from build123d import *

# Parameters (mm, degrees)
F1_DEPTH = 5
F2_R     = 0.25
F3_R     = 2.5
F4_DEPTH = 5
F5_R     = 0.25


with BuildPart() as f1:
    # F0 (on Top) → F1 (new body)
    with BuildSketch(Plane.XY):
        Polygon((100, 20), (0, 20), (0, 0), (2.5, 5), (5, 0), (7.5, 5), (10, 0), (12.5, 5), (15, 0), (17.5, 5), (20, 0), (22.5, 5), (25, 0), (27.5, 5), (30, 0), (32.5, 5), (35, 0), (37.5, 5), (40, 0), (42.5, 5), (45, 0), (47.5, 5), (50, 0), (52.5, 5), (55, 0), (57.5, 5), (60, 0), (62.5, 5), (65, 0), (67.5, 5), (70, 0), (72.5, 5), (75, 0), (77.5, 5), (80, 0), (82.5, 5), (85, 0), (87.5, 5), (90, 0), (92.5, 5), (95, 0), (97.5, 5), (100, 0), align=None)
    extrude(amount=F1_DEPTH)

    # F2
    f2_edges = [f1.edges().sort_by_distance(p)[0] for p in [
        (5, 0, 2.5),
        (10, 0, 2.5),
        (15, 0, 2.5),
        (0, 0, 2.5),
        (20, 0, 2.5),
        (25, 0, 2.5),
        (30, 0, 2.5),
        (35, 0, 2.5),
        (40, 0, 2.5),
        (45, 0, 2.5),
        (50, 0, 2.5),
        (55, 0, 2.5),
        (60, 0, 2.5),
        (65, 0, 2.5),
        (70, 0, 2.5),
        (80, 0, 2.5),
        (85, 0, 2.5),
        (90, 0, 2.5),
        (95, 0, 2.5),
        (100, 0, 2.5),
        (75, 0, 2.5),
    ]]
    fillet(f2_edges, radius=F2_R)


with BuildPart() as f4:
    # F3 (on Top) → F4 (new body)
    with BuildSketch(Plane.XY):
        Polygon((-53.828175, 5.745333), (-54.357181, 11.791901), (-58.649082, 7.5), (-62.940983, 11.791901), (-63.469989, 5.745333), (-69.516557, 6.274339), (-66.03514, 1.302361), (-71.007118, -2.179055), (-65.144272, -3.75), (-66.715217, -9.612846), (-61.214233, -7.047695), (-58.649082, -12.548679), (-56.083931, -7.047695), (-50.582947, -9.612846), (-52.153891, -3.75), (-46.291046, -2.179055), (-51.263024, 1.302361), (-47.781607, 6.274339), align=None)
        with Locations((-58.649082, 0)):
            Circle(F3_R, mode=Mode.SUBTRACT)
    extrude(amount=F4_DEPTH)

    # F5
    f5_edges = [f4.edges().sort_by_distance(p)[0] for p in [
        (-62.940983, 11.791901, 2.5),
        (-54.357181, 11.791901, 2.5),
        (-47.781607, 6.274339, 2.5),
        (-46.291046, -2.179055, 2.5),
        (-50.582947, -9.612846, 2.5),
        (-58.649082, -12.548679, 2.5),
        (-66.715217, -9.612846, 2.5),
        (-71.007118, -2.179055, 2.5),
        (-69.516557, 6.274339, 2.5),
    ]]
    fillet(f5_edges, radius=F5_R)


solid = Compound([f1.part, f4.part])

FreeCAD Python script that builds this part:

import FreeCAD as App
import Part
import Sketcher
from FreeCAD import Vector
Q = App.Units.Quantity


def edges_at(feature, points):
    """Names of the edges that pass closest to the given points."""
    edges = feature.Shape.Edges
    near = lambda p: min(range(len(edges)), key=lambda i: edges[i].distToShape(Part.Vertex(*p))[0])
    return sorted({f"Edge{near(p) + 1}" for p in points})


def add_polygon(sketch, points):
    """Adds a closed chain of lines whose ends are joined by coincident constraints."""
    first, n = sketch.GeometryCount, len(points)
    for a, b in zip(points, points[1:] + points[:1]):
        sketch.addGeometry(Part.LineSegment(App.Vector(*a, 0), App.Vector(*b, 0)), False)
    for i in range(n):
        sketch.addConstraint(Sketcher.Constraint("Coincident", first + i, 2, first + (i + 1) % n, 1))

doc = App.newDocument("Part")
body = doc.addObject("PartDesign::Body", "Body")

# Sketch on XY plane
sketch1 = body.newObject("Sketcher::SketchObject", "Sketch")
sketch1.AttachmentSupport = (doc.getObject("XY_Plane"), [""])
sketch1.MapMode = "FlatFace"
add_polygon(sketch1, [(100, 20), (0, 20), (0, 0), (2, 5), (5, 0), (8, 5), (10, 0), (12, 5), (15, 0), (18, 5), (20, 0), (22, 5), (25, 0), (28, 5), (30, 0), (32, 5), (35, 0), (38, 5), (40, 0), (42, 5), (45, 0), (48, 5), (50, 0), (52, 5), (55, 0), (58, 5), (60, 0), (62, 5), (65, 0), (68, 5), (70, 0), (72, 5), (75, 0), (78, 5), (80, 0), (82, 5), (85, 0), (88, 5), (90, 0), (92, 5), (95, 0), (98, 5), (100, 0)])  # lines 0-42
sketch1.addConstraint([
    Sketcher.Constraint("Horizontal", 0),
    Sketcher.Constraint("Vertical", 1),
    Sketcher.Constraint("Vertical", 42),
    Sketcher.Constraint("Coincident", 1, 2, -1, 1),
    Sketcher.Constraint("PointOnObject", 3, 2, -1),
    Sketcher.Constraint("PointOnObject", 5, 2, -1),
    Sketcher.Constraint("PointOnObject", 7, 2, -1),
    Sketcher.Constraint("PointOnObject", 9, 2, -1),
    Sketcher.Constraint("PointOnObject", 11, 2, -1),
    Sketcher.Constraint("PointOnObject", 13, 2, -1),
    Sketcher.Constraint("PointOnObject", 15, 2, -1),
    Sketcher.Constraint("PointOnObject", 17, 2, -1),
    Sketcher.Constraint("PointOnObject", 19, 2, -1),
    Sketcher.Constraint("PointOnObject", 21, 2, -1),
    Sketcher.Constraint("PointOnObject", 23, 2, -1),
    Sketcher.Constraint("PointOnObject", 25, 2, -1),
    Sketcher.Constraint("PointOnObject", 27, 2, -1),
    Sketcher.Constraint("PointOnObject", 29, 2, -1),
    Sketcher.Constraint("PointOnObject", 31, 2, -1),
    Sketcher.Constraint("PointOnObject", 33, 2, -1),
    Sketcher.Constraint("PointOnObject", 35, 2, -1),
    Sketcher.Constraint("PointOnObject", 37, 2, -1),
    Sketcher.Constraint("PointOnObject", 39, 2, -1),
    Sketcher.Constraint("PointOnObject", 41, 2, -1),
    Sketcher.Constraint("Parallel", 2, 4),
    Sketcher.Constraint("Parallel", 3, 5),
    Sketcher.Constraint("Parallel", 4, 6),
    Sketcher.Constraint("Parallel", 5, 7),
    Sketcher.Constraint("Parallel", 6, 8),
    Sketcher.Constraint("Parallel", 7, 9),
    Sketcher.Constraint("Parallel", 8, 10),
    Sketcher.Constraint("Parallel", 9, 11),
    Sketcher.Constraint("Parallel", 10, 12),
    Sketcher.Constraint("Parallel", 11, 13),
    Sketcher.Constraint("Parallel", 12, 14),
    Sketcher.Constraint("Parallel", 13, 15),
    Sketcher.Constraint("Parallel", 14, 16),
    Sketcher.Constraint("Parallel", 15, 17),
    Sketcher.Constraint("Parallel", 16, 18),
    Sketcher.Constraint("Parallel", 17, 19),
    Sketcher.Constraint("Parallel", 18, 20),
    Sketcher.Constraint("Parallel", 19, 21),
    Sketcher.Constraint("Parallel", 20, 22),
    Sketcher.Constraint("Parallel", 21, 23),
    Sketcher.Constraint("Parallel", 22, 24),
    Sketcher.Constraint("Parallel", 23, 25),
    Sketcher.Constraint("Parallel", 24, 26),
    Sketcher.Constraint("Parallel", 25, 27),
    Sketcher.Constraint("Parallel", 26, 28),
    Sketcher.Constraint("Parallel", 27, 29),
    Sketcher.Constraint("Parallel", 28, 30),
    Sketcher.Constraint("Parallel", 29, 31),
    Sketcher.Constraint("Parallel", 30, 32),
    Sketcher.Constraint("Parallel", 31, 33),
    Sketcher.Constraint("Parallel", 32, 34),
    Sketcher.Constraint("Parallel", 33, 35),
    Sketcher.Constraint("Parallel", 34, 36),
    Sketcher.Constraint("Parallel", 35, 37),
    Sketcher.Constraint("Parallel", 36, 38),
    Sketcher.Constraint("Parallel", 37, 39),
    Sketcher.Constraint("Parallel", 38, 40),
    Sketcher.Constraint("Parallel", 39, 41),
    Sketcher.Constraint("Horizontal", 2, 2, 4, 2),
    Sketcher.Constraint("Horizontal", 4, 2, 6, 2),
    Sketcher.Constraint("Horizontal", 6, 2, 8, 2),
    Sketcher.Constraint("Horizontal", 8, 2, 10, 2),
    Sketcher.Constraint("Horizontal", 10, 2, 12, 2),
    Sketcher.Constraint("Horizontal", 12, 2, 14, 2),
    Sketcher.Constraint("Horizontal", 14, 2, 16, 2),
    Sketcher.Constraint("Horizontal", 16, 2, 18, 2),
    Sketcher.Constraint("Horizontal", 18, 2, 20, 2),
    Sketcher.Constraint("Horizontal", 20, 2, 22, 2),
    Sketcher.Constraint("Horizontal", 22, 2, 24, 2),
    Sketcher.Constraint("Horizontal", 24, 2, 26, 2),
    Sketcher.Constraint("Horizontal", 26, 2, 28, 2),
    Sketcher.Constraint("Horizontal", 28, 2, 30, 2),
    Sketcher.Constraint("Horizontal", 30, 2, 32, 2),
    Sketcher.Constraint("Horizontal", 32, 2, 34, 2),
    Sketcher.Constraint("Horizontal", 34, 2, 36, 2),
    Sketcher.Constraint("Horizontal", 36, 2, 38, 2),
    Sketcher.Constraint("Horizontal", 38, 2, 40, 2),
    Sketcher.Constraint("Equal", 2, 3),
    Sketcher.Constraint("DistanceX", 0, 2, 0, 1, Q("100 mm")),
    Sketcher.Constraint("DistanceY", 1, 2, 1, 1, Q("20 mm")),
    Sketcher.Constraint("DistanceY", -1, 1, 2, 2, Q("5 mm")),
])
pad1 = body.newObject("PartDesign::Pad", "Pad")
pad1.Profile = sketch1
pad1.Length = 5
doc.recompute()

fillet = body.newObject("PartDesign::Fillet", "Fillet")
fillet.Base = (pad1, edges_at(pad1, [
    (5, 0, 2.5),
    (10, 0, 2.5),
    (15, 0, 2.5),
    (0, 0, 2.5),
    (20, 0, 2.5),
    (25, 0, 2.5),
    (30, 0, 2.5),
    (35, 0, 2.5),
    (40, 0, 2.5),
    (45, 0, 2.5),
    (50, 0, 2.5),
    (55, 0, 2.5),
    (60, 0, 2.5),
    (65, 0, 2.5),
    (70, 0, 2.5),
    (80, 0, 2.5),
    (85, 0, 2.5),
    (90, 0, 2.5),
    (95, 0, 2.5),
    (100, 0, 2.5),
    (75, 0, 2.5),
]))
fillet.Radius = 0.25
body2 = doc.addObject("PartDesign::Body", "Body001")

# Sketch on XY plane
sketch2 = body2.newObject("Sketcher::SketchObject", "Sketch001")
sketch2.AttachmentSupport = (doc.getObject("XY_Plane001"), [""])
sketch2.MapMode = "FlatFace"
add_polygon(sketch2, [(-53.8, 5.7), (-54.4, 11.8), (-58.6, 7.5), (-62.9, 11.8), (-63.5, 5.7), (-69.5, 6.3), (-66, 1.3), (-71, -2.2), (-65.1, -3.8), (-66.7, -9.6), (-61.2, -7), (-58.6, -12.5), (-56.1, -7), (-50.6, -9.6), (-52.2, -3.8), (-46.3, -2.2), (-51.3, 1.3), (-47.8, 6.3)])  # lines 0-17
sketch2.addGeometry(Part.Circle(Vector(-58.6, 0, 0), Vector(0, 0, 1), 2.5), False)  # 18
sketch2.addConstraint([
    Sketcher.Constraint("PointOnObject", 18, 3, -1),
    Sketcher.Constraint("Perpendicular", 1, 2),
    Sketcher.Constraint("Perpendicular", 3, 4),
    Sketcher.Constraint("Perpendicular", 5, 6),
    Sketcher.Constraint("Perpendicular", 7, 8),
    Sketcher.Constraint("Perpendicular", 9, 10),
    Sketcher.Constraint("Perpendicular", 11, 12),
    Sketcher.Constraint("Perpendicular", 13, 14),
    Sketcher.Constraint("Perpendicular", 15, 16),
    Sketcher.Constraint("Perpendicular", 0, 17),
    Sketcher.Constraint("Horizontal", 0, 2, 2, 2),
    Sketcher.Constraint("Horizontal", 9, 2, 11, 2),
    Sketcher.Constraint("Horizontal", 8, 2, 12, 2),
    Sketcher.Constraint("Horizontal", 7, 2, 13, 2),
    Sketcher.Constraint("Horizontal", 6, 2, 14, 2),
    Sketcher.Constraint("Horizontal", 5, 2, 15, 2),
    Sketcher.Constraint("Horizontal", 4, 2, 16, 2),
    Sketcher.Constraint("Horizontal", 3, 2, 17, 2),
    Sketcher.Constraint("Vertical", 18, 3, 1, 2),
    Sketcher.Constraint("Vertical", 1, 2, 10, 2),
    Sketcher.Constraint("Equal", 0, 1),
    Sketcher.Constraint("Equal", 1, 2),
    Sketcher.Constraint("Equal", 2, 3),
    Sketcher.Constraint("Equal", 3, 4),
    Sketcher.Constraint("Equal", 4, 5),
    Sketcher.Constraint("Equal", 5, 6),
    Sketcher.Constraint("Equal", 6, 7),
    Sketcher.Constraint("Equal", 7, 8),
    Sketcher.Constraint("Equal", 8, 9),
    Sketcher.Constraint("Equal", 9, 10),
    Sketcher.Constraint("Equal", 10, 11),
    Sketcher.Constraint("Equal", 12, 13),
    Sketcher.Constraint("Diameter", 18, Q("5 mm")),
    Sketcher.Constraint("Angle", 0, Q("94.999999 deg")),
    Sketcher.Constraint("Angle", 5, Q("-54.999996 deg")),
    Sketcher.Constraint("Angle", 7, Q("-15.000001 deg")),
    Sketcher.Constraint("DistanceY", -1, 1, 1, 2, Q("7.5 mm")),
    Sketcher.Constraint("DistanceY", 7, 2, -1, 1, Q("3.75 mm")),
    Sketcher.Constraint("DistanceX", 0, 2, -1, 1, Q("54.357181 mm")),
])
pad2 = body2.newObject("PartDesign::Pad", "Pad001")
pad2.Profile = sketch2
pad2.Length = 5
doc.recompute()

fillet2 = body2.newObject("PartDesign::Fillet", "Fillet001")
fillet2.Base = (pad2, edges_at(pad2, [
    (-62.941, 11.792, 2.5),
    (-54.357, 11.792, 2.5),
    (-47.782, 6.274, 2.5),
    (-46.291, -2.179, 2.5),
    (-50.583, -9.613, 2.5),
    (-58.649, -12.549, 2.5),
    (-66.715, -9.613, 2.5),
    (-71.007, -2.179, 2.5),
    (-69.517, 6.274, 2.5),
]))
fillet2.Radius = 0.25

doc.recompute()
